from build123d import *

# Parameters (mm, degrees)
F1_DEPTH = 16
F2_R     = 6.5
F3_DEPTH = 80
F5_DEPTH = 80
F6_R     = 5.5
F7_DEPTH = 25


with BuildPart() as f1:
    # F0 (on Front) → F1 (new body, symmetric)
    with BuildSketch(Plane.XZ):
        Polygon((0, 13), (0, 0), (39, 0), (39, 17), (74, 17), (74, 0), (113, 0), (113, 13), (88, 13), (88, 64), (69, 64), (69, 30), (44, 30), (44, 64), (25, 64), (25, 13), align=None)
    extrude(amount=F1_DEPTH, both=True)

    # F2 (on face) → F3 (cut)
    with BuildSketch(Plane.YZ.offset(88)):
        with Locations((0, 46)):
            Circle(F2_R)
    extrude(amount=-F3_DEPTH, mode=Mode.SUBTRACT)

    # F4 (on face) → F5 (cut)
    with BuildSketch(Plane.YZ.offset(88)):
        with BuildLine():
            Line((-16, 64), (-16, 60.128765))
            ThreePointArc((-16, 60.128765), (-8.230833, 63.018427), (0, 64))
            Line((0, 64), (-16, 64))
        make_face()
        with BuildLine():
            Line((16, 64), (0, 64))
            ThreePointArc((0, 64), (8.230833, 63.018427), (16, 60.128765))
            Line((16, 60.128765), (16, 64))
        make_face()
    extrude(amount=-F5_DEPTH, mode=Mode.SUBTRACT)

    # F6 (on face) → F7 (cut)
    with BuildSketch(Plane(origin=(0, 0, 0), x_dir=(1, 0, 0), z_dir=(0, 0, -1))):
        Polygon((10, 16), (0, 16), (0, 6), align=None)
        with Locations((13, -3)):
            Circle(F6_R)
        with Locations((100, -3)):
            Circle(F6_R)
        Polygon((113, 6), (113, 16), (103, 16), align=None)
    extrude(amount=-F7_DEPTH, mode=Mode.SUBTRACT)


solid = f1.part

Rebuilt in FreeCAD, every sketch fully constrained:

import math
import FreeCAD as App
import Part
import Sketcher
from FreeCAD import Vector
Q = App.Units.Quantity

doc = App.newDocument("Part")
body = doc.addObject("PartDesign::Body", "Body")

sketch1 = doc.addObject("Sketcher::SketchObject", "Sketch")
body.addObject(sketch1)
sketch1.AttachmentSupport = (doc.XZ_Plane, [""])
sketch1.MapMode = "FlatFace"
sketch1.addGeometry(Part.LineSegment(Vector(0, 13, 0), Vector(0, 0, 0)), False)
sketch1.addGeometry(Part.LineSegment(Vector(0, 0, 0), Vector(39, 0, 0)), False)
sketch1.addGeometry(Part.LineSegment(Vector(39, 0, 0), Vector(39, 17, 0)), False)
sketch1.addGeometry(Part.LineSegment(Vector(39, 17, 0), Vector(74, 17, 0)), False)
sketch1.addGeometry(Part.LineSegment(Vector(74, 17, 0), Vector(74, 0, 0)), False)
sketch1.addGeometry(Part.LineSegment(Vector(74, 0, 0), Vector(113, 0, 0)), False)
sketch1.addGeometry(Part.LineSegment(Vector(113, 0, 0), Vector(113, 13, 0)), False)
sketch1.addGeometry(Part.LineSegment(Vector(113, 13, 0), Vector(88, 13, 0)), False)
sketch1.addGeometry(Part.LineSegment(Vector(88, 13, 0), Vector(88, 64, 0)), False)
sketch1.addGeometry(Part.LineSegment(Vector(88, 64, 0), Vector(69, 64, 0)), False)
sketch1.addGeometry(Part.LineSegment(Vector(69, 64, 0), Vector(69, 30, 0)), False)
sketch1.addGeometry(Part.LineSegment(Vector(69, 30, 0), Vector(44, 30, 0)), False)
sketch1.addGeometry(Part.LineSegment(Vector(44, 30, 0), Vector(44, 64, 0)), False)
sketch1.addGeometry(Part.LineSegment(Vector(44, 64, 0), Vector(25, 64, 0)), False)
sketch1.addGeometry(Part.LineSegment(Vector(25, 64, 0), Vector(25, 13, 0)), False)
sketch1.addGeometry(Part.LineSegment(Vector(25, 13, 0), Vector(0, 13, 0)), False)
sketch1.addConstraint(Sketcher.Constraint("Coincident", 0, 2, 1, 1))
sketch1.addConstraint(Sketcher.Constraint("Coincident", 1, 2, 2, 1))
sketch1.addConstraint(Sketcher.Constraint("Coincident", 2, 2, 3, 1))
sketch1.addConstraint(Sketcher.Constraint("Coincident", 3, 2, 4, 1))
sketch1.addConstraint(Sketcher.Constraint("Coincident", 4, 2, 5, 1))
sketch1.addConstraint(Sketcher.Constraint("Coincident", 5, 2, 6, 1))
sketch1.addConstraint(Sketcher.Constraint("Coincident", 6, 2, 7, 1))
sketch1.addConstraint(Sketcher.Constraint("Coincident", 7, 2, 8, 1))
sketch1.addConstraint(Sketcher.Constraint("Coincident", 8, 2, 9, 1))
sketch1.addConstraint(Sketcher.Constraint("Coincident", 9, 2, 10, 1))
sketch1.addConstraint(Sketcher.Constraint("Coincident", 10, 2, 11, 1))
sketch1.addConstraint(Sketcher.Constraint("Coincident", 11, 2, 12, 1))
sketch1.addConstraint(Sketcher.Constraint("Coincident", 12, 2, 13, 1))
sketch1.addConstraint(Sketcher.Constraint("Coincident", 13, 2, 14, 1))
sketch1.addConstraint(Sketcher.Constraint("Coincident", 14, 2, 15, 1))
sketch1.addConstraint(Sketcher.Constraint("Coincident", 15, 2, 0, 1))
sketch1.addConstraint(Sketcher.Constraint("Vertical", 0))
sketch1.addConstraint(Sketcher.Constraint("Horizontal", 1))
sketch1.addConstraint(Sketcher.Constraint("Vertical", 2))
sketch1.addConstraint(Sketcher.Constraint("Horizontal", 3))
sketch1.addConstraint(Sketcher.Constraint("Vertical", 4))
sketch1.addConstraint(Sketcher.Constraint("Horizontal", 5))
sketch1.addConstraint(Sketcher.Constraint("Vertical", 6))
sketch1.addConstraint(Sketcher.Constraint("Horizontal", 7))
sketch1.addConstraint(Sketcher.Constraint("Vertical", 8))
sketch1.addConstraint(Sketcher.Constraint("Horizontal", 9))
sketch1.addConstraint(Sketcher.Constraint("Vertical", 10))
sketch1.addConstraint(Sketcher.Constraint("Horizontal", 11))
sketch1.addConstraint(Sketcher.Constraint("Vertical", 12))
sketch1.addConstraint(Sketcher.Constraint("Horizontal", 13))
sketch1.addConstraint(Sketcher.Constraint("Vertical", 14))
sketch1.addConstraint(Sketcher.Constraint("Horizontal", 15))
sketch1.addConstraint(Sketcher.Constraint("Coincident", 0, 2, -1, 1))
sketch1.addConstraint(Sketcher.Constraint("PointOnObject", 4, 2, -1))
sketch1.addConstraint(Sketcher.Constraint("Horizontal", 9, 2, 12, 2))
sketch1.addConstraint(Sketcher.Constraint("Horizontal", 7, 2, 14, 2))
sketch1.addConstraint(Sketcher.Constraint("Equal", 1, 5))
sketch1.addConstraint(Sketcher.Constraint("Equal", 7, 11))
sketch1.addConstraint(Sketcher.Constraint("Equal", 9, 13))
sketch1.addConstraint(Sketcher.Constraint("Equal", 11, 15))
sketch1.addConstraint(Sketcher.Constraint("DistanceX", 1, 1, 1, 2, Q("39 mm")))
sketch1.addConstraint(Sketcher.Constraint("DistanceX", 3, 1, 3, 2, Q("35 mm")))
sketch1.addConstraint(Sketcher.Constraint("DistanceX", 7, 2, 7, 1, Q("25 mm")))
sketch1.addConstraint(Sketcher.Constraint("DistanceY", 0, 2, 0, 1, Q("13 mm")))
sketch1.addConstraint(Sketcher.Constraint("DistanceY", 2, 1, 2, 2, Q("17 mm")))
sketch1.addConstraint(Sketcher.Constraint("DistanceY", 8, 1, 8, 2, Q("51 mm")))
sketch1.addConstraint(Sketcher.Constraint("DistanceY", 10, 2, 10, 1, Q("34 mm")))
pad1 = doc.addObject("PartDesign::Pad", "Pad")
body.addObject(pad1)
pad1.Profile = sketch1
pad1.Length = 32
pad1.Midplane = True

sketch2 = doc.addObject("Sketcher::SketchObject", "Sketch001")
body.addObject(sketch2)
sketch2.AttachmentSupport = (doc.YZ_Plane, [""])
sketch2.MapMode = "FlatFace"
sketch2.AttachmentOffset = App.Placement(Vector(0, 0, 88), App.Rotation())
sketch2.addGeometry(Part.Circle(Vector(0, 46, 0), Vector(0, 0, 1), 6), False)
sketch2.addConstraint(Sketcher.Constraint("PointOnObject", 0, 3, -2))
sketch2.addConstraint(Sketcher.Constraint("Diameter", 0, Q("13 mm")))
sketch2.addConstraint(Sketcher.Constraint("DistanceY", -1, 1, 0, 3, Q("46 mm")))
pocket1 = doc.addObject("PartDesign::Pocket", "Pocket")
body.addObject(pocket1)
pocket1.Profile = sketch2
pocket1.Length = 80

sketch3 = doc.addObject("Sketcher::SketchObject", "Sketch002")
body.addObject(sketch3)
sketch3.AttachmentSupport = (doc.YZ_Plane, [""])
sketch3.MapMode = "FlatFace"
sketch3.AttachmentOffset = App.Placement(Vector(0, 0, 88), App.Rotation())
sketch3.addGeometry(Part.LineSegment(Vector(-16, 64, 0), Vector(-16, 60.1, 0)), False)
sketch3.addGeometry(Part.ArcOfCircle(Part.Circle(Vector(0, 29, 0), Vector(0, 0, 1), 35), math.radians(90), math.radians(117)), False)
sketch3.addGeometry(Part.LineSegment(Vector(0, 64, 0), Vector(-16, 64, 0)), False)
sketch3.addGeometry(Part.LineSegment(Vector(16, 64, 0), Vector(0, 64, 0)), False)
sketch3.addGeometry(Part.ArcOfCircle(Part.Circle(Vector(0, 29, 0), Vector(0, 0, 1), 35), math.radians(63), math.radians(90)), False)
sketch3.addGeometry(Part.LineSegment(Vector(16, 60.1, 0), Vector(16, 64, 0)), False)
sketch3.addConstraint(Sketcher.Constraint("Coincident", 0, 2, 1, 2))
sketch3.addConstraint(Sketcher.Constraint("Tangent", 1, 1, 2, 1))
sketch3.addConstraint(Sketcher.Constraint("Coincident", 2, 2, 0, 1))
sketch3.addConstraint(Sketcher.Constraint("Tangent", 3, 2, 4, 2))
sketch3.addConstraint(Sketcher.Constraint("Coincident", 4, 1, 5, 1))
sketch3.addConstraint(Sketcher.Constraint("Coincident", 5, 2, 3, 1))
sketch3.addConstraint(Sketcher.Constraint("Vertical", 0))
sketch3.addConstraint(Sketcher.Constraint("Horizontal", 2))
sketch3.addConstraint(Sketcher.Constraint("Horizontal", 3))
sketch3.addConstraint(Sketcher.Constraint("Vertical", 5))
sketch3.addConstraint(Sketcher.Constraint("Coincident", 4, 3, 1, 3))
sketch3.addConstraint(Sketcher.Constraint("Equal", 1, 4))
sketch3.addConstraint(Sketcher.Constraint("Symmetric", 0, 2, 4, 1, -2))
sketch3.addConstraint(Sketcher.Constraint("DistanceX", 2, 2, 2, 1, Q("16 mm")))
sketch3.addConstraint(Sketcher.Constraint("DistanceY", -1, 1, 1, 1, Q("64 mm")))
sketch3.addConstraint(Sketcher.Constraint("Radius", 1, Q("35.000009 mm")))
pocket2 = doc.addObject("PartDesign::Pocket", "Pocket001")
body.addObject(pocket2)
pocket2.Profile = sketch3
pocket2.Length = 80

sketch4 = doc.addObject("Sketcher::SketchObject", "Sketch003")
body.addObject(sketch4)
sketch4.AttachmentSupport = (doc.XY_Plane, [""])
sketch4.MapMode = "FlatFace"
sketch4.addGeometry(Part.LineSegment(Vector(10, -16, 0), Vector(0, -16, 0)), False)
sketch4.addGeometry(Part.LineSegment(Vector(0, -16, 0), Vector(0, -6, 0)), False)
sketch4.addGeometry(Part.LineSegment(Vector(0, -6, 0), Vector(10, -16, 0)), False)
sketch4.addGeometry(Part.Circle(Vector(13, 3, 0), Vector(0, 0, 1), 6), False)
sketch4.addGeometry(Part.Circle(Vector(100, 3, 0), Vector(0, 0, 1), 6), False)
sketch4.addGeometry(Part.LineSegment(Vector(113, -6, 0), Vector(113, -16, 0)), False)
sketch4.addGeometry(Part.LineSegment(Vector(113, -16, 0), Vector(103, -16, 0)), False)
sketch4.addGeometry(Part.LineSegment(Vector(103, -16, 0), Vector(113, -6, 0)), False)
sketch4.addConstraint(Sketcher.Constraint("Coincident", 0, 2, 1, 1))
sketch4.addConstraint(Sketcher.Constraint("Coincident", 1, 2, 2, 1))
sketch4.addConstraint(Sketcher.Constraint("Coincident", 2, 2, 0, 1))
sketch4.addConstraint(Sketcher.Constraint("Coincident", 5, 2, 6, 1))
sketch4.addConstraint(Sketcher.Constraint("Coincident", 6, 2, 7, 1))
sketch4.addConstraint(Sketcher.Constraint("Coincident", 7, 2, 5, 1))
sketch4.addConstraint(Sketcher.Constraint("Horizontal", 0))
sketch4.addConstraint(Sketcher.Constraint("Vertical", 1))
sketch4.addConstraint(Sketcher.Constraint("Vertical", 5))
sketch4.addConstraint(Sketcher.Constraint("Horizontal", 6))
sketch4.addConstraint(Sketcher.Constraint("Equal", 3, 4))
sketch4.addConstraint(Sketcher.Constraint("PointOnObject", 0, 2, -2))
sketch4.addConstraint(Sketcher.Constraint("Perpendicular", 2, 7))
sketch4.addConstraint(Sketcher.Constraint("Horizontal", 3, 3, 4, 3))
sketch4.addConstraint(Sketcher.Constraint("Horizontal", 2, 2, 5, 2))
sketch4.addConstraint(Sketcher.Constraint("Horizontal", 1, 2, 7, 2))
sketch4.addConstraint(Sketcher.Constraint("Equal", 0, 6))
sketch4.addConstraint(Sketcher.Constraint("Diameter", 3, Q("11 mm")))
sketch4.addConstraint(Sketcher.Constraint("DistanceX", 0, 2, 0, 1, Q("10 mm")))
sketch4.addConstraint(Sketcher.Constraint("DistanceX", -1, 1, 3, 3, Q("13 mm")))
sketch4.addConstraint(Sketcher.Constraint("DistanceY", -1, 1, 3, 3, Q("3 mm")))
sketch4.addConstraint(Sketcher.Constraint("DistanceX", -1, 1, 4, 3, Q("100 mm")))
sketch4.addConstraint(Sketcher.Constraint("DistanceY", 0, 2, -1, 1, Q("16 mm")))
sketch4.addConstraint(Sketcher.Constraint("DistanceX", -1, 1, 5, 2, Q("113 mm")))
pocket3 = doc.addObject("PartDesign::Pocket", "Pocket002")
body.addObject(pocket3)
pocket3.Profile = sketch4
pocket3.Length = 25
pocket3.Reversed = True

doc.recompute()
